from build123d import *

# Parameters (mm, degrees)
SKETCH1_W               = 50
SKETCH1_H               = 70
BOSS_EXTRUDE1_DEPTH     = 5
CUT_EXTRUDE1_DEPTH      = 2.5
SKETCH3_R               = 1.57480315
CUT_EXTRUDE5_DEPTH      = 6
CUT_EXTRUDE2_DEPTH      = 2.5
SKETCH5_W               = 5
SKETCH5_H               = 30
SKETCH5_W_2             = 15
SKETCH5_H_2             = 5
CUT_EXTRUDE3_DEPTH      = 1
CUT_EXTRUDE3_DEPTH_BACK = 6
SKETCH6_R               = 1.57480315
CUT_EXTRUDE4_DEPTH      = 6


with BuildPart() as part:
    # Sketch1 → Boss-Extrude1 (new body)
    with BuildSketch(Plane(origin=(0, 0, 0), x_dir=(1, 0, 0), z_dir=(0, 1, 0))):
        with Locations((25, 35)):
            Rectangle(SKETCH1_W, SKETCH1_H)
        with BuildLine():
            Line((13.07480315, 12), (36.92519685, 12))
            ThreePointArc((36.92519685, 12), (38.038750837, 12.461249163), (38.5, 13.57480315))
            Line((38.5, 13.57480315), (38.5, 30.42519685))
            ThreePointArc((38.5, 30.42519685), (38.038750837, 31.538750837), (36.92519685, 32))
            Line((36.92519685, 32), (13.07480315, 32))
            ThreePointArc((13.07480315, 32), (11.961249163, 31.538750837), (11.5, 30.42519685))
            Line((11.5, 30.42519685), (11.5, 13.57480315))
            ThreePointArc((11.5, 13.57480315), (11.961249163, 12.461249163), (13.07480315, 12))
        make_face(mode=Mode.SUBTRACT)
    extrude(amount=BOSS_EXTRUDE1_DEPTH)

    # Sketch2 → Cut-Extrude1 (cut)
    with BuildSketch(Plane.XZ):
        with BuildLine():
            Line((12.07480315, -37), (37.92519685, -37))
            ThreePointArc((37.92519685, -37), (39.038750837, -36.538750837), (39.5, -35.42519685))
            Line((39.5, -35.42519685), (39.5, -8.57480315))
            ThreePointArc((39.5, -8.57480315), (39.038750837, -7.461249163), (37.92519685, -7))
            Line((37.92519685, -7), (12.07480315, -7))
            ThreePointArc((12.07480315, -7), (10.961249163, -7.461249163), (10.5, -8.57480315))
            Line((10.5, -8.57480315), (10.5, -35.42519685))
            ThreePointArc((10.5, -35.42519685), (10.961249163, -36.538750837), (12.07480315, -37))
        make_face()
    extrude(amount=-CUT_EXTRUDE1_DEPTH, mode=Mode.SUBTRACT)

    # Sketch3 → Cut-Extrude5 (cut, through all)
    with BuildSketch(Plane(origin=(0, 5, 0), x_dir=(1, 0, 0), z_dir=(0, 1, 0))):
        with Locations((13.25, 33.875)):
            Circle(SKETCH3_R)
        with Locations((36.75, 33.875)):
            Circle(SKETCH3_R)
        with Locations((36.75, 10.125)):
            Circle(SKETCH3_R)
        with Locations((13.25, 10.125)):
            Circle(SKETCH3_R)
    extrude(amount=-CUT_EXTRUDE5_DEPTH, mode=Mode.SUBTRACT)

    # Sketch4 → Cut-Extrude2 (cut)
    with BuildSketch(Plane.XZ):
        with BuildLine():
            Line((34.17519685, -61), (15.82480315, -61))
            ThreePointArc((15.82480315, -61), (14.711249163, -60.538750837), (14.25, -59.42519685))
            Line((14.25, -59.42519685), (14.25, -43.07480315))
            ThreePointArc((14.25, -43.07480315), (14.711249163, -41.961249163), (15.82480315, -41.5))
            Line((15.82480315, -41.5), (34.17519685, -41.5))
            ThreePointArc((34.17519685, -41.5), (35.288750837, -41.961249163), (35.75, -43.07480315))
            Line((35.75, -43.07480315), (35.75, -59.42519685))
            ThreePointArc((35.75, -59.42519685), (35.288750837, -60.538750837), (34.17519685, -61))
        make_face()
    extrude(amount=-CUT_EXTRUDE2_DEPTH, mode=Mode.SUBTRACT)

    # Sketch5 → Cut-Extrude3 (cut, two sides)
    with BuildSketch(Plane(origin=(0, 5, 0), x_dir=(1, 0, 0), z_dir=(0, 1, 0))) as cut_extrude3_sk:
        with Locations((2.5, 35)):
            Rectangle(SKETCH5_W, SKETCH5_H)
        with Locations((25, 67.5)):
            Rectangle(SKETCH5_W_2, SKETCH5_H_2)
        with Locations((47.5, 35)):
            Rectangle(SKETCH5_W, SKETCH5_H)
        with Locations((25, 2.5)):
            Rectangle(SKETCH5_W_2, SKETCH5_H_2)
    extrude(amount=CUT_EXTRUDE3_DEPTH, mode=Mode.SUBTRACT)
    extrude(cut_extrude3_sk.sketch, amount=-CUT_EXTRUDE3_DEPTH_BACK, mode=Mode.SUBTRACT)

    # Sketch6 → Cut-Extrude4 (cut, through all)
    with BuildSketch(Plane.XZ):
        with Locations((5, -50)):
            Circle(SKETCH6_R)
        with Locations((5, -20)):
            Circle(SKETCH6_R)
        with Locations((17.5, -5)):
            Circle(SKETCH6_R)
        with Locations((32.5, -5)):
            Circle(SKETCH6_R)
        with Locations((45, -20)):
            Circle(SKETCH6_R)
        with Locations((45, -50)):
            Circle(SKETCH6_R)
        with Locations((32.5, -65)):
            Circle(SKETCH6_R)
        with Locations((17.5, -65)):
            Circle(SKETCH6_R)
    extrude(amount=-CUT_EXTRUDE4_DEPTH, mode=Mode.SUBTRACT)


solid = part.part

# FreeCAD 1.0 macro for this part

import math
import FreeCAD as App
import Part
import Sketcher
from FreeCAD import Vector

doc = App.newDocument("Part")
params = doc.addObject("Spreadsheet::Sheet", "Params")
for row, (alias, value) in enumerate([
    ("sketch1_width", "50 mm"),
    ("sketch1_height", "70 mm"),
    ("pad1_length", "5 mm"),
    ("pocket1_length", "2.5 mm"),
    ("pocket3_length", "2.5 mm"),
    ("sketch5_width", "5 mm"),
    ("sketch5_width2", "15 mm"),
    ("sketch5_height", "30 mm"),
], start=1):
    params.set(f"A{row}", alias)
    params.set(f"B{row}", "=" + value)
    params.setAlias(f"B{row}", alias)

body = doc.addObject("PartDesign::Body", "Body")

# Sketch on XZ plane
sketch1 = doc.addObject("Sketcher::SketchObject", "Sketch")
body.addObject(sketch1)
sketch1.AttachmentSupport = (doc.XZ_Plane, [""])
sketch1.MapMode = "FlatFace"
sketch1.addGeometry([
    Part.LineSegment(Vector(0, -70, 0), Vector(0, 0, 0)),  # 0
    Part.LineSegment(Vector(0, 0, 0), Vector(50, 0, 0)),  # 1
    Part.LineSegment(Vector(50, 0, 0), Vector(50, -70, 0)),  # 2
    Part.LineSegment(Vector(50, -70, 0), Vector(0, -70, 0)),  # 3
    Part.LineSegment(Vector(36.9, -12, 0), Vector(13.1, -12, 0)),  # 4
    Part.ArcOfCircle(Part.Circle(Vector(13.1, -13.6, 0), Vector(0, 0, 1), 1.6), math.radians(90), math.radians(180)),  # 5
    Part.LineSegment(Vector(11.5, -13.6, 0), Vector(11.5, -30.4, 0)),  # 6
    Part.ArcOfCircle(Part.Circle(Vector(13.1, -30.4, 0), Vector(0, 0, 1), 1.6), math.radians(180), math.radians(270)),  # 7
    Part.LineSegment(Vector(13.1, -32, 0), Vector(36.9, -32, 0)),  # 8
    Part.ArcOfCircle(Part.Circle(Vector(36.9, -30.4, 0), Vector(0, 0, 1), 1.6), math.radians(-90), math.radians(0)),  # 9
    Part.LineSegment(Vector(38.5, -30.4, 0), Vector(38.5, -13.6, 0)),  # 10
    Part.ArcOfCircle(Part.Circle(Vector(36.9, -13.6, 0), Vector(0, 0, 1), 1.6), math.radians(0), math.radians(90)),  # 11
], False)
sketch1.addConstraint([
    Sketcher.Constraint("Coincident", 0, 2, 1, 1),
    Sketcher.Constraint("Coincident", 1, 2, 2, 1),
    Sketcher.Constraint("Coincident", 2, 2, 3, 1),
    Sketcher.Constraint("Coincident", 3, 2, 0, 1),
    Sketcher.Constraint("Tangent", 4, 2, 5, 1),
    Sketcher.Constraint("Tangent", 5, 2, 6, 1),
    Sketcher.Constraint("Tangent", 6, 2, 7, 1),
    Sketcher.Constraint("Tangent", 7, 2, 8, 1),
    Sketcher.Constraint("Tangent", 8, 2, 9, 1),
    Sketcher.Constraint("Tangent", 9, 2, 10, 1),
    Sketcher.Constraint("Tangent", 10, 2, 11, 1),
    Sketcher.Constraint("Tangent", 11, 2, 4, 1),
    Sketcher.Constraint("Vertical", 0),
    Sketcher.Constraint("Horizontal", 1),
    Sketcher.Constraint("Vertical", 2),
    Sketcher.Constraint("Horizontal", 3),
    Sketcher.Constraint("Horizontal", 4),
    Sketcher.Constraint("Vertical", 6),
    Sketcher.Constraint("Horizontal", 8),
    Sketcher.Constraint("Vertical", 10),
    Sketcher.Constraint("Coincident", 0, 2, -1, 1),
    Sketcher.Constraint("Equal", 5, 7),
    Sketcher.Constraint("Equal", 7, 9),
    Sketcher.Constraint("Equal", 9, 11),
    Sketcher.Constraint("DistanceX", 1, 1, 1, 2, 50.0),
    Sketcher.Constraint("DistanceY", 0, 1, 0, 2, 70.0),
    Sketcher.Constraint("DistanceY", 4, 2, -1, 1, 12.0),
    Sketcher.Constraint("DistanceY", 7, 2, -1, 1, 32.0),
    Sketcher.Constraint("DistanceX", -1, 1, 5, 2, 11.5),
    Sketcher.Constraint("DistanceX", -1, 1, 9, 2, 38.5),
    Sketcher.Constraint("Radius", 5, 1.574803),
])
sketch1.setExpression("Constraints[24]", "Params.sketch1_width")
sketch1.setExpression("Constraints[25]", "Params.sketch1_height")
pad1 = doc.addObject("PartDesign::Pad", "Pad")
body.addObject(pad1)
pad1.Profile = sketch1
pad1.setExpression("Length", "Params.pad1_length")
pad1.Reversed = True

# Sketch on XZ plane
sketch2 = doc.addObject("Sketcher::SketchObject", "Sketch001")
body.addObject(sketch2)
sketch2.AttachmentSupport = (doc.XZ_Plane, [""])
sketch2.MapMode = "FlatFace"
sketch2.addGeometry([
    Part.LineSegment(Vector(12.1, -37, 0), Vector(37.9, -37, 0)),  # 0
    Part.ArcOfCircle(Part.Circle(Vector(37.9, -35.4, 0), Vector(0, 0, 1), 1.6), math.radians(-90), math.radians(0)),  # 1
    Part.LineSegment(Vector(39.5, -35.4, 0), Vector(39.5, -8.6, 0)),  # 2
    Part.ArcOfCircle(Part.Circle(Vector(37.9, -8.6, 0), Vector(0, 0, 1), 1.6), math.radians(0), math.radians(90)),  # 3
    Part.LineSegment(Vector(37.9, -7, 0), Vector(12.1, -7, 0)),  # 4
    Part.ArcOfCircle(Part.Circle(Vector(12.1, -8.6, 0), Vector(0, 0, 1), 1.6), math.radians(90), math.radians(180)),  # 5
    Part.LineSegment(Vector(10.5, -8.6, 0), Vector(10.5, -35.4, 0)),  # 6
    Part.ArcOfCircle(Part.Circle(Vector(12.1, -35.4, 0), Vector(0, 0, 1), 1.6), math.radians(180), math.radians(270)),  # 7
], False)
sketch2.addConstraint([
    Sketcher.Constraint("Tangent", 0, 2, 1, 1),
    Sketcher.Constraint("Tangent", 1, 2, 2, 1),
    Sketcher.Constraint("Tangent", 2, 2, 3, 1),
    Sketcher.Constraint("Tangent", 3, 2, 4, 1),
    Sketcher.Constraint("Tangent", 4, 2, 5, 1),
    Sketcher.Constraint("Tangent", 5, 2, 6, 1),
    Sketcher.Constraint("Tangent", 6, 2, 7, 1),
    Sketcher.Constraint("Tangent", 7, 2, 0, 1),
    Sketcher.Constraint("Horizontal", 0),
    Sketcher.Constraint("Vertical", 2),
    Sketcher.Constraint("Horizontal", 4),
    Sketcher.Constraint("Vertical", 6),
    Sketcher.Constraint("Equal", 1, 3),
    Sketcher.Constraint("Equal", 3, 5),
    Sketcher.Constraint("Equal", 5, 7),
    Sketcher.Constraint("DistanceY", 0, 2, -1, 1, 37.0),
    Sketcher.Constraint("DistanceY", 3, 2, -1, 1, 7.0),
    Sketcher.Constraint("DistanceX", -1, 1, 1, 2, 39.5),
    Sketcher.Constraint("DistanceX", -1, 1, 5, 2, 10.5),
    Sketcher.Constraint("Radius", 1, 1.574803),
])
pocket1 = doc.addObject("PartDesign::Pocket", "Pocket")
body.addObject(pocket1)
pocket1.Profile = sketch2
pocket1.setExpression("Length", "Params.pocket1_length")

# Sketch on XZ plane
sketch3 = doc.addObject("Sketcher::SketchObject", "Sketch002")
body.addObject(sketch3)
sketch3.AttachmentSupport = (doc.XZ_Plane, [""])
sketch3.MapMode = "FlatFace"
sketch3.AttachmentOffset = App.Placement(Vector(0, 0, -5), App.Rotation())
sketch3.addGeometry([
    Part.Circle(Vector(13.2, -33.9, 0), Vector(0, 0, 1), 1.6),
    Part.Circle(Vector(36.8, -33.9, 0), Vector(0, 0, 1), 1.6),
    Part.Circle(Vector(36.8, -10.1, 0), Vector(0, 0, 1), 1.6),
    Part.Circle(Vector(13.2, -10.1, 0), Vector(0, 0, 1), 1.6),
], False)
sketch3.addConstraint([
    Sketcher.Constraint("Equal", 0, 1),
    Sketcher.Constraint("Equal", 1, 2),
    Sketcher.Constraint("Equal", 2, 3),
    Sketcher.Constraint("Horizontal", 0, 3, 1, 3),
    Sketcher.Constraint("Horizontal", 2, 3, 3, 3),
    Sketcher.Constraint("Vertical", 1, 3, 2, 3),
    Sketcher.Constraint("Vertical", 0, 3, 3, 3),
    Sketcher.Constraint("DistanceX", 0, 3, 1, 3, 23.5),
    Sketcher.Constraint("DistanceX", -1, 1, 0, 3, 13.25),
    Sketcher.Constraint("DistanceY", 1, 3, 2, 3, 23.75),
    Sketcher.Constraint("Diameter", 0, 3.149606),
    Sketcher.Constraint("DistanceY", 0, 3, -1, 1, 33.875),
])
pocket2 = doc.addObject("PartDesign::Pocket", "Pocket001")
body.addObject(pocket2)
pocket2.Profile = sketch3
pocket2.Type = "ThroughAll"
pocket2.Reversed = True

# Sketch on XZ plane
sketch4 = doc.addObject("Sketcher::SketchObject", "Sketch003")
body.addObject(sketch4)
sketch4.AttachmentSupport = (doc.XZ_Plane, [""])
sketch4.MapMode = "FlatFace"
sketch4.addGeometry([
    Part.LineSegment(Vector(15.8, -61, 0), Vector(34.2, -61, 0)),  # 0
    Part.ArcOfCircle(Part.Circle(Vector(34.2, -59.4, 0), Vector(0, 0, 1), 1.6), math.radians(-90), math.radians(0)),  # 1
    Part.LineSegment(Vector(35.8, -59.4, 0), Vector(35.8, -43.1, 0)),  # 2
    Part.ArcOfCircle(Part.Circle(Vector(34.2, -43.1, 0), Vector(0, 0, 1), 1.6), math.radians(0), math.radians(90)),  # 3
    Part.LineSegment(Vector(34.2, -41.5, 0), Vector(15.8, -41.5, 0)),  # 4
    Part.ArcOfCircle(Part.Circle(Vector(15.8, -43.1, 0), Vector(0, 0, 1), 1.6), math.radians(90), math.radians(180)),  # 5
    Part.LineSegment(Vector(14.2, -43.1, 0), Vector(14.2, -59.4, 0)),  # 6
    Part.ArcOfCircle(Part.Circle(Vector(15.8, -59.4, 0), Vector(0, 0, 1), 1.6), math.radians(180), math.radians(270)),  # 7
], False)
sketch4.addConstraint([
    Sketcher.Constraint("Tangent", 0, 2, 1, 1),
    Sketcher.Constraint("Tangent", 1, 2, 2, 1),
    Sketcher.Constraint("Tangent", 2, 2, 3, 1),
    Sketcher.Constraint("Tangent", 3, 2, 4, 1),
    Sketcher.Constraint("Tangent", 4, 2, 5, 1),
    Sketcher.Constraint("Tangent", 5, 2, 6, 1),
    Sketcher.Constraint("Tangent", 6, 2, 7, 1),
    Sketcher.Constraint("Tangent", 7, 2, 0, 1),
    Sketcher.Constraint("Horizontal", 0),
    Sketcher.Constraint("Vertical", 2),
    Sketcher.Constraint("Horizontal", 4),
    Sketcher.Constraint("Vertical", 6),
    Sketcher.Constraint("Equal", 1, 3),
    Sketcher.Constraint("Equal", 3, 5),
    Sketcher.Constraint("Equal", 5, 7),
    Sketcher.Constraint("DistanceY", 0, 2, -1, 1, 61.0),
    Sketcher.Constraint("DistanceY", 3, 2, -1, 1, 41.5),
    Sketcher.Constraint("DistanceX", -1, 1, 1, 2, 35.75),
    Sketcher.Constraint("DistanceX", -1, 1, 5, 2, 14.25),
    Sketcher.Constraint("Radius", 1, 1.574803),
])
pocket3 = doc.addObject("PartDesign::Pocket", "Pocket002")
body.addObject(pocket3)
pocket3.Profile = sketch4
pocket3.setExpression("Length", "Params.pocket3_length")

# Sketch on XZ plane
sketch5 = doc.addObject("Sketcher::SketchObject", "Sketch004")
body.addObject(sketch5)
sketch5.AttachmentSupport = (doc.XZ_Plane, [""])
sketch5.MapMode = "FlatFace"
sketch5.AttachmentOffset = App.Placement(Vector(0, 0, -5), App.Rotation())
sketch5.addGeometry([
    Part.LineSegment(Vector(0, -50, 0), Vector(0, -20, 0)),  # 0
    Part.LineSegment(Vector(0, -20, 0), Vector(5, -20, 0)),  # 1
    Part.LineSegment(Vector(5, -20, 0), Vector(5, -50, 0)),  # 2
    Part.LineSegment(Vector(5, -50, 0), Vector(0, -50, 0)),  # 3
    Part.LineSegment(Vector(18, -70, 0), Vector(18, -65, 0)),  # 4
    Part.LineSegment(Vector(18, -65, 0), Vector(32, -65, 0)),  # 5
    Part.LineSegment(Vector(32, -65, 0), Vector(32, -70, 0)),  # 6
    Part.LineSegment(Vector(32, -70, 0), Vector(18, -70, 0)),  # 7
    Part.LineSegment(Vector(45, -50, 0), Vector(45, -20, 0)),  # 8
    Part.LineSegment(Vector(45, -20, 0), Vector(50, -20, 0)),  # 9
    Part.LineSegment(Vector(50, -20, 0), Vector(50, -50, 0)),  # 10
    Part.LineSegment(Vector(50, -50, 0), Vector(45, -50, 0)),  # 11
    Part.LineSegment(Vector(18, -5, 0), Vector(18, 0, 0)),  # 12
    Part.LineSegment(Vector(18, 0, 0), Vector(32, 0, 0)),  # 13
    Part.LineSegment(Vector(32, 0, 0), Vector(32, -5, 0)),  # 14
    Part.LineSegment(Vector(32, -5, 0), Vector(18, -5, 0)),  # 15
], False)
sketch5.addConstraint([
    Sketcher.Constraint("Coincident", 0, 2, 1, 1),
    Sketcher.Constraint("Coincident", 1, 2, 2, 1),
    Sketcher.Constraint("Coincident", 2, 2, 3, 1),
    Sketcher.Constraint("Coincident", 3, 2, 0, 1),
    Sketcher.Constraint("Coincident", 4, 2, 5, 1),
    Sketcher.Constraint("Coincident", 5, 2, 6, 1),
    Sketcher.Constraint("Coincident", 6, 2, 7, 1),
    Sketcher.Constraint("Coincident", 7, 2, 4, 1),
    Sketcher.Constraint("Coincident", 8, 2, 9, 1),
    Sketcher.Constraint("Coincident", 9, 2, 10, 1),
    Sketcher.Constraint("Coincident", 10, 2, 11, 1),
    Sketcher.Constraint("Coincident", 11, 2, 8, 1),
    Sketcher.Constraint("Coincident", 12, 2, 13, 1),
    Sketcher.Constraint("Coincident", 13, 2, 14, 1),
    Sketcher.Constraint("Coincident", 14, 2, 15, 1),
    Sketcher.Constraint("Coincident", 15, 2, 12, 1),
    Sketcher.Constraint("Vertical", 0),
    Sketcher.Constraint("Horizontal", 1),
    Sketcher.Constraint("Vertical", 2),
    Sketcher.Constraint("Horizontal", 3),
    Sketcher.Constraint("Vertical", 4),
    Sketcher.Constraint("Horizontal", 5),
    Sketcher.Constraint("Vertical", 6),
    Sketcher.Constraint("Horizontal", 7),
    Sketcher.Constraint("Vertical", 8),
    Sketcher.Constraint("Horizontal", 9),
    Sketcher.Constraint("Vertical", 10),
    Sketcher.Constraint("Horizontal", 11),
    Sketcher.Constraint("Vertical", 12),
    Sketcher.Constraint("Horizontal", 13),
    Sketcher.Constraint("Vertical", 14),
    Sketcher.Constraint("Horizontal", 15),
    Sketcher.Constraint("PointOnObject", 0, 2, -2),
    Sketcher.Constraint("PointOnObject", 12, 2, -1),
    Sketcher.Constraint("Horizontal", 1, 2, 8, 2),
    Sketcher.Constraint("Horizontal", 3, 2, 10, 2),
    Sketcher.Constraint("Vertical", 7, 2, 12, 2),
    Sketcher.Constraint("Vertical", 6, 2, 13, 2),
    Sketcher.Constraint("Equal", 3, 9),
    Sketcher.Constraint("Equal", 11, 4),
    Sketcher.Constraint("Equal", 6, 12),
    Sketcher.Constraint("DistanceX", 1, 1, 1, 2, 5.0),
    Sketcher.Constraint("DistanceX", 5, 1, 5, 2, 15.0),
    Sketcher.Constraint("DistanceY", 0, 1, 0, 2, 30.0),
    Sketcher.Constraint("DistanceY", 0, 2, -1, 1, 20.0),
    Sketcher.Constraint("DistanceY", 4, 2, -1, 1, 65.0),
    Sketcher.Constraint("DistanceX", -1, 1, 8, 2, 45.0),
    Sketcher.Constraint("DistanceX", -1, 1, 4, 2, 17.5),
])
sketch5.setExpression("Constraints[41]", "Params.sketch5_width")
sketch5.setExpression("Constraints[42]", "Params.sketch5_width2")
sketch5.setExpression("Constraints[43]", "Params.sketch5_height")
pocket4 = doc.addObject("PartDesign::Pocket", "Pocket003")
body.addObject(pocket4)
pocket4.Profile = sketch5
pocket4.Type = "ThroughAll"
pocket4.Midplane = True

# Sketch on XZ plane
sketch6 = doc.addObject("Sketcher::SketchObject", "Sketch005")
body.addObject(sketch6)
sketch6.AttachmentSupport = (doc.XZ_Plane, [""])
sketch6.MapMode = "FlatFace"
sketch6.addGeometry([
    Part.Circle(Vector(5, -50, 0), Vector(0, 0, 1), 1.6),  # 0
    Part.Circle(Vector(5, -20, 0), Vector(0, 0, 1), 1.6),  # 1
    Part.Circle(Vector(17.5, -5, 0), Vector(0, 0, 1), 1.6),  # 2
    Part.Circle(Vector(32.5, -5, 0), Vector(0, 0, 1), 1.6),  # 3
    Part.Circle(Vector(45, -20, 0), Vector(0, 0, 1), 1.6),  # 4
    Part.Circle(Vector(45, -50, 0), Vector(0, 0, 1), 1.6),  # 5
    Part.Circle(Vector(32.5, -65, 0), Vector(0, 0, 1), 1.6),  # 6
    Part.Circle(Vector(17.5, -65, 0), Vector(0, 0, 1), 1.6),  # 7
], False)
sketch6.addConstraint([
    Sketcher.Constraint("Equal", 0, 1),
    Sketcher.Constraint("Equal", 1, 2),
    Sketcher.Constraint("Equal", 2, 3),
    Sketcher.Constraint("Equal", 3, 4),
    Sketcher.Constraint("Equal", 4, 5),
    Sketcher.Constraint("Equal", 5, 6),
    Sketcher.Constraint("Equal", 6, 7),
    Sketcher.Constraint("Horizontal", 2, 3, 3, 3),
    Sketcher.Constraint("Horizontal", 1, 3, 4, 3),
    Sketcher.Constraint("Horizontal", 0, 3, 5, 3),
    Sketcher.Constraint("Horizontal", 6, 3, 7, 3),
    Sketcher.Constraint("Vertical", 0, 3, 1, 3),
    Sketcher.Constraint("Vertical", 4, 3, 5, 3),
    Sketcher.Constraint("Vertical", 3, 3, 6, 3),
    Sketcher.Constraint("Vertical", 2, 3, 7, 3),
    Sketcher.Constraint("DistanceX", -1, 1, 0, 3, 5.0),
    Sketcher.Constraint("DistanceY", 0, 3, -1, 1, 50.0),
    Sketcher.Constraint("DistanceY", 1, 3, -1, 1, 20.0),
    Sketcher.Constraint("DistanceY", 2, 3, -1, 1, 5.0),
    Sketcher.Constraint("DistanceX", -1, 1, 4, 3, 45.0),
    Sketcher.Constraint("DistanceY", 6, 3, -1, 1, 65.0),
    Sketcher.Constraint("DistanceX", 2, 3, 3, 3, 15.0),
    Sketcher.Constraint("DistanceX", -1, 1, 2, 3, 17.5),
    Sketcher.Constraint("Diameter", 0, 3.149606),
])
pocket5 = doc.addObject("PartDesign::Pocket", "Pocket004")
body.addObject(pocket5)
pocket5.Profile = sketch6
pocket5.Type = "ThroughAll"

doc.recompute()
